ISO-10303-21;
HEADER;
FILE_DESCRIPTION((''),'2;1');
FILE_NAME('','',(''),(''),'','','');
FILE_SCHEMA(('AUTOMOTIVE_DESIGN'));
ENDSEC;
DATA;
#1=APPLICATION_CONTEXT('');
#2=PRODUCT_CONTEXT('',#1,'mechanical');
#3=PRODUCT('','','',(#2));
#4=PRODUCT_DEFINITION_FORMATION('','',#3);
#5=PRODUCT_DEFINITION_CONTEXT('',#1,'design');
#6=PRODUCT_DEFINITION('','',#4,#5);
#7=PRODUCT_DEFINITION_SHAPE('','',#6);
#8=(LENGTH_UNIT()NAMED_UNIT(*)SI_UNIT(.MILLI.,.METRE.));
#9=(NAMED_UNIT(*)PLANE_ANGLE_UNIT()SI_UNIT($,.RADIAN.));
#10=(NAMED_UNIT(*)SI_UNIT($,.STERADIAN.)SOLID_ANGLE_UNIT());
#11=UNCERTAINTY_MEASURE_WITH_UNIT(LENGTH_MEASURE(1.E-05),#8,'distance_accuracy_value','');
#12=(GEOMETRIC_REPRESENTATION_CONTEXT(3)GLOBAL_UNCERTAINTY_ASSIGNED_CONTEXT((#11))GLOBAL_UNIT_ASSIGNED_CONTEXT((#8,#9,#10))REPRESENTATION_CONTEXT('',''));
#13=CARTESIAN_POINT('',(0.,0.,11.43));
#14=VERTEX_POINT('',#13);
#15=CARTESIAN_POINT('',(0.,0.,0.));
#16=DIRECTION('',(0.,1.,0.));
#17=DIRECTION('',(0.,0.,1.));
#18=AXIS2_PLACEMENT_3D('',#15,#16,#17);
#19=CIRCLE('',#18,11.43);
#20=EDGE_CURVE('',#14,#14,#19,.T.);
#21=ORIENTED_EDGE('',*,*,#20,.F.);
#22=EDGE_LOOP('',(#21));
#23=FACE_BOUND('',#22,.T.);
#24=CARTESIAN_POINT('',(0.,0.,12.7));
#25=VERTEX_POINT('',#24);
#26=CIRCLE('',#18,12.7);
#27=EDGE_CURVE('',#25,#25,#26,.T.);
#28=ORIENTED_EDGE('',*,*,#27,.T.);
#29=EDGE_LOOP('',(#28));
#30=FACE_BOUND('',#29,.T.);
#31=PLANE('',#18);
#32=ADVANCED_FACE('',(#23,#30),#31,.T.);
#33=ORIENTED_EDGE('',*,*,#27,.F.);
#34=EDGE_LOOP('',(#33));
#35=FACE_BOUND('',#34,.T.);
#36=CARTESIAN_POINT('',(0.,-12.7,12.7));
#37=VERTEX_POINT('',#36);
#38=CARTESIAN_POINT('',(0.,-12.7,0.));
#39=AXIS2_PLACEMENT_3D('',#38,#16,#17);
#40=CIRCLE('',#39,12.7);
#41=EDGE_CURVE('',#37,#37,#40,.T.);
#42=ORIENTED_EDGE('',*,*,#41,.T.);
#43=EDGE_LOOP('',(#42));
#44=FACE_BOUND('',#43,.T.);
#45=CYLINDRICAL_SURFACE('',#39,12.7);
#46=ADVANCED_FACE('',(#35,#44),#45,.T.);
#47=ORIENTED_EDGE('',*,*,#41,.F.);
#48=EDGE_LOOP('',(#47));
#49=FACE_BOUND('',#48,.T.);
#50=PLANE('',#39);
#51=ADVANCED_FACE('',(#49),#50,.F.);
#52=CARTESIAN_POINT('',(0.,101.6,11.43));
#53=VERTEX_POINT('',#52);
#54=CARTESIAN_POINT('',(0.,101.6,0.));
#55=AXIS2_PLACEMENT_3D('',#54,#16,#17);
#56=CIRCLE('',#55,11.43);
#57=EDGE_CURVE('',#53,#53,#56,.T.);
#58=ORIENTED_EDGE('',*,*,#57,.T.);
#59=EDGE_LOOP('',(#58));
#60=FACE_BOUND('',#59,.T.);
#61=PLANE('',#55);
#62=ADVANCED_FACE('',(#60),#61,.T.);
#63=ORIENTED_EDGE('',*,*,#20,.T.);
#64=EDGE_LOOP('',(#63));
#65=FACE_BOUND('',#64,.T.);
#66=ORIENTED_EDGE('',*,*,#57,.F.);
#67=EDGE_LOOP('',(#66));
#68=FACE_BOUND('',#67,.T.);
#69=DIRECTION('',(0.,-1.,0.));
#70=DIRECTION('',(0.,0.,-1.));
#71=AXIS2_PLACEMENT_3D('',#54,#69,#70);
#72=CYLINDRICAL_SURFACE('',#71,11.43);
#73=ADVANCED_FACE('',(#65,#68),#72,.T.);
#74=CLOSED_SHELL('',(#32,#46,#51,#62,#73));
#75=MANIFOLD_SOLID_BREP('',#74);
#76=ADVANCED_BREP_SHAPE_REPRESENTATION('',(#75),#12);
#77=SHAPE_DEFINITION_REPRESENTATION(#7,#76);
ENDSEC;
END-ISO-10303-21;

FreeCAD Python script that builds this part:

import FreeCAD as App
import Part
import Sketcher

V = App.Vector
Q = App.Units.Quantity

doc = App.newDocument("Part")
body = doc.addObject("PartDesign::Body", "Body")

# Sketch on XZ plane
sketch1 = body.newObject("Sketcher::SketchObject", "Sketch")
sketch1.AttachmentSupport = (doc.getObject("XZ_Plane"), [""])
sketch1.MapMode = "FlatFace"
sketch1.addGeometry(Part.Circle(V(0, 0, 0), V(0, 0, 1), 11), False)
sketch1.addConstraint(Sketcher.Constraint("Coincident", 0, 3, -1, 1))
sketch1.addConstraint(Sketcher.Constraint("Diameter", 0, Q("0.9 in")))
pad1 = body.newObject("PartDesign::Pad", "Pad")
pad1.Profile = sketch1
pad1.Length = Q("4 in")
pad1.Reversed = True

# Sketch on XZ plane
sketch2 = body.newObject("Sketcher::SketchObject", "Sketch001")
sketch2.AttachmentSupport = (doc.getObject("XZ_Plane"), [""])
sketch2.MapMode = "FlatFace"
sketch2.addGeometry(Part.Circle(V(0, 0, 0), V(0, 0, 1), 13), False)
sketch2.addConstraint(Sketcher.Constraint("Coincident", 0, 3, -1, 1))
sketch2.addConstraint(Sketcher.Constraint("Diameter", 0, Q("1 in")))
pad2 = body.newObject("PartDesign::Pad", "Pad001")
pad2.Profile = sketch2
pad2.Length = Q("0.5 in")

doc.recompute()
